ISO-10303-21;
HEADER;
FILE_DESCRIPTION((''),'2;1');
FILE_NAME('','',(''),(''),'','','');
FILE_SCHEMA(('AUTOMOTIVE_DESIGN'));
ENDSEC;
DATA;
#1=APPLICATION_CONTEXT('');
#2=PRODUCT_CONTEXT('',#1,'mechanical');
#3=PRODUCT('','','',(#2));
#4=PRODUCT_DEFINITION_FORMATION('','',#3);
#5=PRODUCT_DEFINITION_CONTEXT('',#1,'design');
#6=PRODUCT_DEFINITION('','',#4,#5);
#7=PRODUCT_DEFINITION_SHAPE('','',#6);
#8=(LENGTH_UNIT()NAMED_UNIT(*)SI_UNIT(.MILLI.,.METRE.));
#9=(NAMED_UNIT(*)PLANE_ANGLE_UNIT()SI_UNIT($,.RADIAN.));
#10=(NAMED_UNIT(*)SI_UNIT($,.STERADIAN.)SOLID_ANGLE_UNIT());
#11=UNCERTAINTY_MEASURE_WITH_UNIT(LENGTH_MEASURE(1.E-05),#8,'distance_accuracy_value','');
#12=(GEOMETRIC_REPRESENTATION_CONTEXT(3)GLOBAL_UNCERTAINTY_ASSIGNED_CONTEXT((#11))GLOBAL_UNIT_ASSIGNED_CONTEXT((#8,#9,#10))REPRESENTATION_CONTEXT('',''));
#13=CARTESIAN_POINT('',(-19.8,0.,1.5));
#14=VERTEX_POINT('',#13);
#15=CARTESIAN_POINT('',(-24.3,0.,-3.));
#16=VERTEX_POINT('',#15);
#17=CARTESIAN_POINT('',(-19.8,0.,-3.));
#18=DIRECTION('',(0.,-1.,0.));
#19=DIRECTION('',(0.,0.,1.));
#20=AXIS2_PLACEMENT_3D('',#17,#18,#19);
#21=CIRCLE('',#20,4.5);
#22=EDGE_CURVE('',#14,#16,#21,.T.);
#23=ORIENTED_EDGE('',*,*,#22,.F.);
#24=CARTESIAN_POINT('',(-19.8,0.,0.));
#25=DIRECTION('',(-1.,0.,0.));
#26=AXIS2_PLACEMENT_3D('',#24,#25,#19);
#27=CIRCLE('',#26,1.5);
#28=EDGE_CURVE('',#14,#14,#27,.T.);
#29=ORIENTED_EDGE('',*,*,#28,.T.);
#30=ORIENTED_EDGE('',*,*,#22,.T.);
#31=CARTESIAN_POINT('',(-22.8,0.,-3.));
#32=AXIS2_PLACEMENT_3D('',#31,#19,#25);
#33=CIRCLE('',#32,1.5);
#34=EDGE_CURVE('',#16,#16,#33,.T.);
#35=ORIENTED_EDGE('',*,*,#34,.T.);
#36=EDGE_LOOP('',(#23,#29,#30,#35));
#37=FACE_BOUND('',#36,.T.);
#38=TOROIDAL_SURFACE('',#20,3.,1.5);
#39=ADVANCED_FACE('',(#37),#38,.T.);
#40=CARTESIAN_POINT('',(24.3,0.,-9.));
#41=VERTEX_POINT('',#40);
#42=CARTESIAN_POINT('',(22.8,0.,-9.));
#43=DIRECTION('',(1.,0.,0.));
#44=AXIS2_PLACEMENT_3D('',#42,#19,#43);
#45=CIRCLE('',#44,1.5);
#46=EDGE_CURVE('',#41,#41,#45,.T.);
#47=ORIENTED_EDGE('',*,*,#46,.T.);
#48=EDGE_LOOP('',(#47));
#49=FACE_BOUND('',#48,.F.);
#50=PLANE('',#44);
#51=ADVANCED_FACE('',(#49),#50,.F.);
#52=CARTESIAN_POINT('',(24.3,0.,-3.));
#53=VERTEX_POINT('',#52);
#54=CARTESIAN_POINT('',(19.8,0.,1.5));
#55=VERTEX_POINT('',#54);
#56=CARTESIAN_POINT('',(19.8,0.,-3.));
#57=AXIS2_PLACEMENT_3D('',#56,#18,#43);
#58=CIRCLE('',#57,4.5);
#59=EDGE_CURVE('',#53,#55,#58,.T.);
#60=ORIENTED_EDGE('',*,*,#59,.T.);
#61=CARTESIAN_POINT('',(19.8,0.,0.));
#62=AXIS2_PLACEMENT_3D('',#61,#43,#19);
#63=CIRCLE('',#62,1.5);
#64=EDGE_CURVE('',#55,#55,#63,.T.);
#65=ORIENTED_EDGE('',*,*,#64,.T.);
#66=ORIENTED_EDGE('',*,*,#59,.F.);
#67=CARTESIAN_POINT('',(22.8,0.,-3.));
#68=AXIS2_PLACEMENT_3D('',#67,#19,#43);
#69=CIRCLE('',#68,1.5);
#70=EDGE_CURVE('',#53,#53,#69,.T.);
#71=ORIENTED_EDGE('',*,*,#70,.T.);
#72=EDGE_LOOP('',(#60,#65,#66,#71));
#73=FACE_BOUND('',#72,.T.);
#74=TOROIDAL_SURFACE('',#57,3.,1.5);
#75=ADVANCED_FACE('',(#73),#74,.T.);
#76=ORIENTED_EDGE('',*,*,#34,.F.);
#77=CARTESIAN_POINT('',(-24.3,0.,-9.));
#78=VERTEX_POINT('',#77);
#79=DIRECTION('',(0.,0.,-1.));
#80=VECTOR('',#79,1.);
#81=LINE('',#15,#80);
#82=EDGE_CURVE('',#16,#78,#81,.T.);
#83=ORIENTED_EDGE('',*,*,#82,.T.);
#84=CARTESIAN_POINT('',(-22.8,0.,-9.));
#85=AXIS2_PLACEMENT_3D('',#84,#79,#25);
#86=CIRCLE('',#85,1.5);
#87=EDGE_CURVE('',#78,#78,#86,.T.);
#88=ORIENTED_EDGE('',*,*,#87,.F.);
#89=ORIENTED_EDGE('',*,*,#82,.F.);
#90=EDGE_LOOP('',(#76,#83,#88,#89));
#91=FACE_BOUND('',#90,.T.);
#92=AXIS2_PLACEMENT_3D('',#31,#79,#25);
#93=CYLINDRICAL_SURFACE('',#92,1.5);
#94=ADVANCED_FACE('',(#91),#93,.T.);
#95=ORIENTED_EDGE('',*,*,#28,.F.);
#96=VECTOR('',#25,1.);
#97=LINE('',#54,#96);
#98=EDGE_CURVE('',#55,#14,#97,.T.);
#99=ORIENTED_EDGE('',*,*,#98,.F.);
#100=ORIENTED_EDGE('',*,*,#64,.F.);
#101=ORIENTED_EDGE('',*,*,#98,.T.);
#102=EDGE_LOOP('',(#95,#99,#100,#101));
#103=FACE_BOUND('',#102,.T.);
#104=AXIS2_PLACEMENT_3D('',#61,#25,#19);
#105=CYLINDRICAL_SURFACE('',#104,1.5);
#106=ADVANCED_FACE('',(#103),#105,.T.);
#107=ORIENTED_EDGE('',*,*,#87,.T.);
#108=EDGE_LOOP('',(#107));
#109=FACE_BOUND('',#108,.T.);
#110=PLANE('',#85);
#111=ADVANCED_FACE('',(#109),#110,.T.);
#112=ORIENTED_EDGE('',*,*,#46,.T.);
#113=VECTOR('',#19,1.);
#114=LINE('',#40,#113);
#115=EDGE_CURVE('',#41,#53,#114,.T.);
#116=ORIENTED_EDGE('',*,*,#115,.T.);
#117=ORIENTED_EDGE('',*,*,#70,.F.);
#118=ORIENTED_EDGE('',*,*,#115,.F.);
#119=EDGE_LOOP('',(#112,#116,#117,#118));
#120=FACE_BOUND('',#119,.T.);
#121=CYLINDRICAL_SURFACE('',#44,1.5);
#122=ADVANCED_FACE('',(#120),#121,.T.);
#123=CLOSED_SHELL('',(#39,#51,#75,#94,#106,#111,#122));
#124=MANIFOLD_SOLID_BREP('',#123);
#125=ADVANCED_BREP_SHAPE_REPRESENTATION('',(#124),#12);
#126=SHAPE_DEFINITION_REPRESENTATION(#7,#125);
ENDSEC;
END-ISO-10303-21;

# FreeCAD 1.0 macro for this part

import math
import FreeCAD as App
import Part
import Sketcher

doc = App.newDocument("Part")
body = doc.addObject("PartDesign::Body", "Body")

sketch1 = body.newObject("Sketcher::SketchObject", "Sketch")
sketch1.AttachmentSupport = (doc.getObject("XY_Plane"), [""])
sketch1.MapMode = "FlatFace"
sketch1.AttachmentOffset = App.Placement(App.Vector(0, 0, -9), App.Rotation())
sketch1.addGeometry(Part.Circle(App.Vector(22.8, 0, 0), App.Vector(0, 0, 1), 1.5), False)
sketch1.addConstraint([
    Sketcher.Constraint("PointOnObject", 0, 3, -1),
    Sketcher.Constraint("Diameter", 0, 3.0),
    Sketcher.Constraint("DistanceX", -1, 1, 0, 3, 22.8),
])

sketch2 = body.newObject("Sketcher::SketchObject", "Sketch001")
sketch2.AttachmentSupport = (doc.getObject("XZ_Plane"), [""])
sketch2.MapMode = "FlatFace"
sketch2.addGeometry([
    Part.LineSegment(App.Vector(22.8, -9, 0), App.Vector(22.8, -3, 0)),
    Part.ArcOfCircle(Part.Circle(App.Vector(19.8, -3, 0), App.Vector(0, 0, 1), 3), math.radians(0), math.radians(90)),
    Part.LineSegment(App.Vector(19.8, 0, 0), App.Vector(-19.8, 0, 0)),
    Part.ArcOfCircle(Part.Circle(App.Vector(-19.8, -3, 0), App.Vector(0, 0, 1), 3), math.radians(90), math.radians(180)),
    Part.LineSegment(App.Vector(-22.8, -3, 0), App.Vector(-22.8, -9, 0)),
], False)
sketch2.addConstraint([
    Sketcher.Constraint("Tangent", 0, 2, 1, 1),
    Sketcher.Constraint("Tangent", 1, 2, 2, 1),
    Sketcher.Constraint("Tangent", 2, 2, 3, 1),
    Sketcher.Constraint("Tangent", 3, 2, 4, 1),
    Sketcher.Constraint("Vertical", 0),
    Sketcher.Constraint("Horizontal", 2),
    Sketcher.Constraint("Vertical", 4),
    Sketcher.Constraint("Equal", 1, 3),
    Sketcher.Constraint("Symmetric", 1, 2, 2, 2, -1, 1),
    Sketcher.Constraint("Horizontal", 0, 1, 4, 2),
    Sketcher.Constraint("Radius", 1, 3.0),
    Sketcher.Constraint("DistanceY", 0, 1, 0, 2, 6.0),
    Sketcher.Constraint("DistanceX", 2, 2, 2, 1, 39.6),
])
doc.recompute()

additivepipe = body.newObject("PartDesign::AdditivePipe", "AdditivePipe")
additivepipe.Profile = sketch1
additivepipe.Spine = (sketch2, ["Edge1", "Edge2", "Edge3", "Edge4", "Edge5"])

doc.recompute()
